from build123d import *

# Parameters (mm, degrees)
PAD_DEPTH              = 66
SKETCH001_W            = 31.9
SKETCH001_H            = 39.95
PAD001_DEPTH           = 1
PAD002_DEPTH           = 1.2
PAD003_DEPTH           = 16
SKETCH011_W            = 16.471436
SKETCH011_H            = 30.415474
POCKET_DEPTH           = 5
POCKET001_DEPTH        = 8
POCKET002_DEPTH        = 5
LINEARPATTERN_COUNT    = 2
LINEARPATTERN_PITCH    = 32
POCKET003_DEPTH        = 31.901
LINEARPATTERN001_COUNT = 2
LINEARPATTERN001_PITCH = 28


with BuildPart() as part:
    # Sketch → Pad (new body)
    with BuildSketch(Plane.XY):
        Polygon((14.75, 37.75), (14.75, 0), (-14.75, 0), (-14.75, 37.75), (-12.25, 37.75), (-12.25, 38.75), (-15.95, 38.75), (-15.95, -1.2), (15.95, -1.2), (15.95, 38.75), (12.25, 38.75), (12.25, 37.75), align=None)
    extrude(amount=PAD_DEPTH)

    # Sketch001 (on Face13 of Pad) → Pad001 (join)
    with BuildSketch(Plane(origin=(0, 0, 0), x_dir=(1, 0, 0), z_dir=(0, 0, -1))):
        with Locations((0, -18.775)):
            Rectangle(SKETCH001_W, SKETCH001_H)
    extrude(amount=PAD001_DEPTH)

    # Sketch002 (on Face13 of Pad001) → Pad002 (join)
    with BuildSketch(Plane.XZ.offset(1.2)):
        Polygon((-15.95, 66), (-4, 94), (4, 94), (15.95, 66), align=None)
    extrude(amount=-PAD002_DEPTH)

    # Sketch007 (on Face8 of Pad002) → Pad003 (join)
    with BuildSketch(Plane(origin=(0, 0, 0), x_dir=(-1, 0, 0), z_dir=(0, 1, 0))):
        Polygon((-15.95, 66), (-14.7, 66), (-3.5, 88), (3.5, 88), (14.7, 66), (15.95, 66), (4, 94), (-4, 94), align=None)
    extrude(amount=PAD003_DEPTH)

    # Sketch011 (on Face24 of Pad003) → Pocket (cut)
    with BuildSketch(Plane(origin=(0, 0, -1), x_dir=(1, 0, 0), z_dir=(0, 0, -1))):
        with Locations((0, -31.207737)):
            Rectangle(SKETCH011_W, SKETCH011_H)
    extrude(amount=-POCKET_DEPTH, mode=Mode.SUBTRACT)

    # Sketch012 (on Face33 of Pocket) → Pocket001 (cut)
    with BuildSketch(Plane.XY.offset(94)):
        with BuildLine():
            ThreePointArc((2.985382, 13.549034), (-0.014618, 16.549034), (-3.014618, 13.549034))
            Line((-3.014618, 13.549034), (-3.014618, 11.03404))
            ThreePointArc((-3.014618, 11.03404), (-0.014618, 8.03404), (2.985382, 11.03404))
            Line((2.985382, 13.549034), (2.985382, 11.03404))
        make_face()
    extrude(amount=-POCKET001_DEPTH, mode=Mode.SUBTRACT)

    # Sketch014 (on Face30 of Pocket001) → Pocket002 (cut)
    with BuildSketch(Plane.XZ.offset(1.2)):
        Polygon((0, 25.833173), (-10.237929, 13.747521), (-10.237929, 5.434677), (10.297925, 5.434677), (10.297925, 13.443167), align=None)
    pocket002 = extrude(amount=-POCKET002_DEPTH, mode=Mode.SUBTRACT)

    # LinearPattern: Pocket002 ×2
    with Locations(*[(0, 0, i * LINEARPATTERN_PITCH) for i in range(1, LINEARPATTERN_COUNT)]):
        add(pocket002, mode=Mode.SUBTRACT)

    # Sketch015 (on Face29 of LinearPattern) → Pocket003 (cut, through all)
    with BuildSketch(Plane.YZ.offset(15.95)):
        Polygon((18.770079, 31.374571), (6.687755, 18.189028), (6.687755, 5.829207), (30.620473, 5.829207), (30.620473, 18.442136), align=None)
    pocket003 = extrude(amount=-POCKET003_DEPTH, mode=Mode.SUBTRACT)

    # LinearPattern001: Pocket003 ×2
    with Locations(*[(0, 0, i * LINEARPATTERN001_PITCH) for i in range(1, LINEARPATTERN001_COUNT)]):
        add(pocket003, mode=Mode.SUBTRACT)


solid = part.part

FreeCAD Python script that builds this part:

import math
import FreeCAD as App
import Part
import Sketcher
Q = App.Units.Quantity

doc = App.newDocument("Part")
body = doc.addObject("PartDesign::Body", "Body")

sketch1 = doc.addObject("Sketcher::SketchObject", "Sketch")
body.addObject(sketch1)
sketch1.AttachmentSupport = (doc.XY_Plane, [""])
sketch1.MapMode = "FlatFace"
sketch1.addGeometry([
    Part.LineSegment(App.Vector(14.75, 37.75, 0), App.Vector(14.75, 0, 0)),
    Part.LineSegment(App.Vector(14.75, 0, 0), App.Vector(-14.75, 0, 0)),
    Part.LineSegment(App.Vector(-14.75, 0, 0), App.Vector(-14.75, 37.75, 0)),
    Part.LineSegment(App.Vector(-14.75, 37.75, 0), App.Vector(-12.25, 37.75, 0)),
    Part.LineSegment(App.Vector(-12.25, 37.75, 0), App.Vector(-12.25, 38.75, 0)),
    Part.LineSegment(App.Vector(-12.25, 38.75, 0), App.Vector(-15.95, 38.75, 0)),
    Part.LineSegment(App.Vector(-15.95, 38.75, 0), App.Vector(-15.95, -1.2, 0)),
    Part.LineSegment(App.Vector(-15.95, -1.2, 0), App.Vector(15.95, -1.2, 0)),
    Part.LineSegment(App.Vector(15.95, -1.2, 0), App.Vector(15.95, 38.75, 0)),
    Part.LineSegment(App.Vector(15.95, 38.75, 0), App.Vector(12.25, 38.75, 0)),
    Part.LineSegment(App.Vector(12.25, 38.75, 0), App.Vector(12.25, 37.75, 0)),
    Part.LineSegment(App.Vector(12.25, 37.75, 0), App.Vector(14.75, 37.75, 0)),
], False)
sketch1.addConstraint([
    Sketcher.Constraint("Coincident", 0, 2, 1, 1),
    Sketcher.Constraint("Coincident", 1, 2, 2, 1),
    Sketcher.Constraint("Coincident", 2, 2, 3, 1),
    Sketcher.Constraint("Coincident", 3, 2, 4, 1),
    Sketcher.Constraint("Coincident", 4, 2, 5, 1),
    Sketcher.Constraint("Coincident", 5, 2, 6, 1),
    Sketcher.Constraint("Coincident", 6, 2, 7, 1),
    Sketcher.Constraint("Coincident", 7, 2, 8, 1),
    Sketcher.Constraint("Coincident", 8, 2, 9, 1),
    Sketcher.Constraint("Coincident", 9, 2, 10, 1),
    Sketcher.Constraint("Coincident", 10, 2, 11, 1),
    Sketcher.Constraint("Coincident", 11, 2, 0, 1),
    Sketcher.Constraint("Vertical", 0),
    Sketcher.Constraint("Horizontal", 1),
    Sketcher.Constraint("Vertical", 2),
    Sketcher.Constraint("Horizontal", 3),
    Sketcher.Constraint("Vertical", 4),
    Sketcher.Constraint("Horizontal", 5),
    Sketcher.Constraint("Vertical", 6),
    Sketcher.Constraint("Horizontal", 7),
    Sketcher.Constraint("Vertical", 8),
    Sketcher.Constraint("Horizontal", 9),
    Sketcher.Constraint("Vertical", 10),
    Sketcher.Constraint("Horizontal", 11),
    Sketcher.Constraint("Symmetric", 0, 2, 1, 2, -1, 1),
    Sketcher.Constraint("Symmetric", 5, 2, 8, 2, -2),
    Sketcher.Constraint("Symmetric", 3, 2, 10, 2, -2),
    Sketcher.Constraint("DistanceY", 4, 1, 4, 2, Q("1 mm")),
    Sketcher.Constraint("DistanceX", 1, 2, 1, 1, Q("29.5 mm")),
    Sketcher.Constraint("DistanceX", 3, 1, 3, 2, Q("2.5 mm")),
    Sketcher.Constraint("DistanceX", 5, 2, 5, 1, Q("3.7 mm")),
    Sketcher.Constraint("DistanceY", 0, 2, 0, 1, Q("37.75 mm")),
    Sketcher.Constraint("DistanceY", 6, 2, 6, 1, Q("39.95 mm")),
])
pad1 = doc.addObject("PartDesign::Pad", "Pad")
body.addObject(pad1)
pad1.Profile = sketch1
pad1.Length = 66

sketch2 = doc.addObject("Sketcher::SketchObject", "Sketch001")
body.addObject(sketch2)
sketch2.AttachmentSupport = (doc.XY_Plane, [""])
sketch2.MapMode = "FlatFace"
sketch2.addGeometry([
    Part.LineSegment(App.Vector(-15.95, -1.2, 0), App.Vector(-15.95, 38.75, 0)),
    Part.LineSegment(App.Vector(-15.95, 38.75, 0), App.Vector(15.95, 38.75, 0)),
    Part.LineSegment(App.Vector(15.95, 38.75, 0), App.Vector(15.95, -1.2, 0)),
    Part.LineSegment(App.Vector(15.95, -1.2, 0), App.Vector(-15.95, -1.2, 0)),
], False)
sketch2.addConstraint([
    Sketcher.Constraint("Coincident", 0, 2, 1, 1),
    Sketcher.Constraint("Coincident", 1, 2, 2, 1),
    Sketcher.Constraint("Coincident", 2, 2, 3, 1),
    Sketcher.Constraint("Coincident", 3, 2, 0, 1),
    Sketcher.Constraint("Vertical", 0),
    Sketcher.Constraint("Horizontal", 1),
    Sketcher.Constraint("Vertical", 2),
    Sketcher.Constraint("Horizontal", 3),
    Sketcher.Constraint("DistanceX", 1, 1, 1, 2, Q("31.9 mm")),
    Sketcher.Constraint("DistanceY", 0, 1, 0, 2, Q("39.95 mm")),
    Sketcher.Constraint("DistanceY", 2, 2, -1, 1, Q("1.2 mm")),
    Sketcher.Constraint("DistanceX", 0, 2, -1, 1, Q("15.95 mm")),
])
pad2 = doc.addObject("PartDesign::Pad", "Pad001")
body.addObject(pad2)
pad2.Profile = sketch2
pad2.Length = 1
pad2.Reversed = True

sketch3 = doc.addObject("Sketcher::SketchObject", "Sketch002")
body.addObject(sketch3)
sketch3.AttachmentSupport = (doc.XZ_Plane, [""])
sketch3.MapMode = "FlatFace"
sketch3.AttachmentOffset = App.Placement(App.Vector(0, 0, 1.2), App.Rotation())
sketch3.addGeometry([
    Part.LineSegment(App.Vector(-4, 94, 0), App.Vector(-15.95, 66, 0)),
    Part.LineSegment(App.Vector(-15.95, 66, 0), App.Vector(15.95, 66, 0)),
    Part.LineSegment(App.Vector(15.95, 66, 0), App.Vector(4, 94, 0)),
    Part.LineSegment(App.Vector(4, 94, 0), App.Vector(-4, 94, 0)),
], False)
sketch3.addConstraint([
    Sketcher.Constraint("Coincident", 0, 2, 1, 1),
    Sketcher.Constraint("Coincident", 1, 2, 2, 1),
    Sketcher.Constraint("Coincident", 2, 2, 3, 1),
    Sketcher.Constraint("Coincident", 3, 2, 0, 1),
    Sketcher.Constraint("Horizontal", 1),
    Sketcher.Constraint("Horizontal", 3),
    Sketcher.Constraint("Equal", 0, 2),
    Sketcher.Constraint("DistanceX", 3, 2, 3, 1, Q("8 mm")),
    Sketcher.Constraint("DistanceX", 1, 1, 1, 2, Q("31.9 mm")),
    Sketcher.Constraint("DistanceY", -1, 1, 0, 2, Q("66 mm")),
    Sketcher.Constraint("DistanceX", -1, 1, 2, 2, Q("4 mm")),
    Sketcher.Constraint("DistanceY", -1, 1, 2, 2, Q("94 mm")),
])
pad3 = doc.addObject("PartDesign::Pad", "Pad002")
body.addObject(pad3)
pad3.Profile = sketch3
pad3.Length = 1.2
pad3.Reversed = True

sketch4 = doc.addObject("Sketcher::SketchObject", "Sketch003")
body.addObject(sketch4)
sketch4.AttachmentSupport = (doc.XZ_Plane, [""])
sketch4.MapMode = "FlatFace"
sketch4.addGeometry([
    Part.LineSegment(App.Vector(15.95, 66, 0), App.Vector(14.7, 66, 0)),
    Part.LineSegment(App.Vector(14.7, 66, 0), App.Vector(3.5, 88, 0)),
    Part.LineSegment(App.Vector(3.5, 88, 0), App.Vector(-3.5, 88, 0)),
    Part.LineSegment(App.Vector(-3.5, 88, 0), App.Vector(-14.7, 66, 0)),
    Part.LineSegment(App.Vector(-14.7, 66, 0), App.Vector(-15.95, 66, 0)),
    Part.LineSegment(App.Vector(-15.95, 66, 0), App.Vector(-4, 94, 0)),
    Part.LineSegment(App.Vector(-4, 94, 0), App.Vector(4, 94, 0)),
    Part.LineSegment(App.Vector(4, 94, 0), App.Vector(15.95, 66, 0)),
], False)
sketch4.addConstraint([
    Sketcher.Constraint("Coincident", 0, 2, 1, 1),
    Sketcher.Constraint("Coincident", 1, 2, 2, 1),
    Sketcher.Constraint("Coincident", 2, 2, 3, 1),
    Sketcher.Constraint("Coincident", 3, 2, 4, 1),
    Sketcher.Constraint("Coincident", 4, 2, 5, 1),
    Sketcher.Constraint("Coincident", 5, 2, 6, 1),
    Sketcher.Constraint("Coincident", 6, 2, 7, 1),
    Sketcher.Constraint("Coincident", 7, 2, 0, 1),
    Sketcher.Constraint("Horizontal", 0),
    Sketcher.Constraint("Horizontal", 2),
    Sketcher.Constraint("Horizontal", 4),
    Sketcher.Constraint("Horizontal", 6),
    Sketcher.Constraint("Symmetric", 0, 2, 3, 2, -2),
    Sketcher.Constraint("Equal", 0, 4),
    Sketcher.Constraint("Equal", 1, 3),
    Sketcher.Constraint("Equal", 5, 7),
    Sketcher.Constraint("DistanceX", 2, 2, 2, 1, Q("7 mm")),
    Sketcher.Constraint("DistanceX", 6, 1, 6, 2, Q("8 mm")),
    Sketcher.Constraint("DistanceY", -1, 1, 0, 2, Q("66 mm")),
    Sketcher.Constraint("DistanceY", -1, 1, 1, 2, Q("88 mm")),
    Sketcher.Constraint("DistanceY", -1, 1, 5, 2, Q("94 mm")),
    Sketcher.Constraint("DistanceX", 0, 2, 0, 1, Q("1.25 mm")),
    Sketcher.Constraint("DistanceX", -1, 1, 0, 2, Q("14.7 mm")),
])
pad4 = doc.addObject("PartDesign::Pad", "Pad003")
body.addObject(pad4)
pad4.Profile = sketch4
pad4.Length = 16
pad4.Reversed = True

sketch5 = doc.addObject("Sketcher::SketchObject", "Sketch004")
body.addObject(sketch5)
sketch5.AttachmentSupport = (doc.XY_Plane, [""])
sketch5.MapMode = "FlatFace"
sketch5.AttachmentOffset = App.Placement(App.Vector(0, 0, -1), App.Rotation())
sketch5.addGeometry([
    Part.LineSegment(App.Vector(-8.235718, 16, 0), App.Vector(-8.235718, 46.415474, 0)),
    Part.LineSegment(App.Vector(-8.235718, 46.415474, 0), App.Vector(8.235718, 46.415474, 0)),
    Part.LineSegment(App.Vector(8.235718, 46.415474, 0), App.Vector(8.235718, 16, 0)),
    Part.LineSegment(App.Vector(8.235718, 16, 0), App.Vector(-8.235718, 16, 0)),
], False)
sketch5.addConstraint([
    Sketcher.Constraint("Coincident", 0, 2, 1, 1),
    Sketcher.Constraint("Coincident", 1, 2, 2, 1),
    Sketcher.Constraint("Coincident", 2, 2, 3, 1),
    Sketcher.Constraint("Coincident", 3, 2, 0, 1),
    Sketcher.Constraint("Vertical", 0),
    Sketcher.Constraint("Horizontal", 1),
    Sketcher.Constraint("Vertical", 2),
    Sketcher.Constraint("Horizontal", 3),
    Sketcher.Constraint("DistanceY", -1, 1, 2, 2, Q("16 mm")),
    Sketcher.Constraint("DistanceX", 1, 1, 1, 2, Q("16.471436 mm")),
    Sketcher.Constraint("DistanceY", 0, 1, 0, 2, Q("30.415474 mm")),
    Sketcher.Constraint("DistanceX", 0, 2, -1, 1, Q("8.235718 mm")),
])
pocket1 = doc.addObject("PartDesign::Pocket", "Pocket")
body.addObject(pocket1)
pocket1.Profile = sketch5
pocket1.Length = 5
pocket1.Reversed = True

sketch6 = doc.addObject("Sketcher::SketchObject", "Sketch005")
body.addObject(sketch6)
sketch6.AttachmentSupport = (doc.XY_Plane, [""])
sketch6.MapMode = "FlatFace"
sketch6.AttachmentOffset = App.Placement(App.Vector(0, 0, 94), App.Rotation())
sketch6.addGeometry([
    Part.ArcOfCircle(Part.Circle(App.Vector(-0.014618, 13.549034, 0), App.Vector(0, 0, 1), 3), math.radians(0), math.radians(180)),
    Part.LineSegment(App.Vector(-3.014618, 13.549034, 0), App.Vector(-3.014618, 11.03404, 0)),
    Part.ArcOfCircle(Part.Circle(App.Vector(-0.014618, 11.03404, 0), App.Vector(0, 0, 1), 3), math.radians(180), math.radians(360)),
    Part.LineSegment(App.Vector(2.985382, 11.03404, 0), App.Vector(2.985382, 13.549034, 0)),
], False)
sketch6.addConstraint([
    Sketcher.Constraint("Tangent", 0, 2, 1, 1),
    Sketcher.Constraint("Tangent", 1, 2, 2, 1),
    Sketcher.Constraint("Tangent", 2, 2, 3, 1),
    Sketcher.Constraint("Tangent", 3, 2, 0, 1),
    Sketcher.Constraint("Vertical", 1),
    Sketcher.Constraint("Vertical", 3),
    Sketcher.Constraint("Radius", 0, Q("3 mm")),
    Sketcher.Constraint("DistanceY", 1, 2, 1, 1, Q("2.514994 mm")),
    Sketcher.Constraint("DistanceX", 0, 3, -1, 1, Q("0.014618 mm")),
    Sketcher.Constraint("DistanceY", -1, 1, 2, 3, Q("11.03404 mm")),
])
pocket2 = doc.addObject("PartDesign::Pocket", "Pocket001")
body.addObject(pocket2)
pocket2.Profile = sketch6
pocket2.Length = 8

sketch7 = doc.addObject("Sketcher::SketchObject", "Sketch006")
body.addObject(sketch7)
sketch7.AttachmentSupport = (doc.XZ_Plane, [""])
sketch7.MapMode = "FlatFace"
sketch7.AttachmentOffset = App.Placement(App.Vector(0, 0, 1.2), App.Rotation())
sketch7.addGeometry([
    Part.LineSegment(App.Vector(0, 25.833173, 0), App.Vector(-10.237929, 13.747521, 0)),
    Part.LineSegment(App.Vector(-10.237929, 13.747521, 0), App.Vector(-10.237929, 5.434677, 0)),
    Part.LineSegment(App.Vector(-10.237929, 5.434677, 0), App.Vector(10.297925, 5.434677, 0)),
    Part.LineSegment(App.Vector(10.297925, 5.434677, 0), App.Vector(10.297925, 13.443167, 0)),
    Part.LineSegment(App.Vector(10.297925, 13.443167, 0), App.Vector(0, 25.833173, 0)),
], False)
sketch7.addConstraint([
    Sketcher.Constraint("Coincident", 0, 2, 1, 1),
    Sketcher.Constraint("Coincident", 1, 2, 2, 1),
    Sketcher.Constraint("Coincident", 2, 2, 3, 1),
    Sketcher.Constraint("Coincident", 3, 2, 4, 1),
    Sketcher.Constraint("Coincident", 4, 2, 0, 1),
    Sketcher.Constraint("Vertical", 1),
    Sketcher.Constraint("Horizontal", 2),
    Sketcher.Constraint("Vertical", 3),
    Sketcher.Constraint("PointOnObject", 4, 2, -2),
    Sketcher.Constraint("DistanceY", 3, 1, 3, 2, Q("8.00849 mm")),
    Sketcher.Constraint("Distance", 4, Q("16.110851 mm")),
    Sketcher.Constraint("DistanceX", 2, 1, 2, 2, Q("20.535854 mm")),
    Sketcher.Constraint("DistanceY", 1, 2, 1, 1, Q("8.312844 mm")),
    Sketcher.Constraint("DistanceX", 0, 2, -1, 1, Q("10.237929 mm")),
    Sketcher.Constraint("DistanceY", -1, 1, 0, 2, Q("13.747521 mm")),
])
pocket3 = doc.addObject("PartDesign::Pocket", "Pocket002")
body.addObject(pocket3)
pocket3.Profile = sketch7
pocket3.Length = 5
doc.recompute()

linearpattern = doc.addObject("PartDesign::LinearPattern", "LinearPattern")
body.addObject(linearpattern)
linearpattern.Originals = [pocket3]
linearpattern.Direction = (doc.Z_Axis, [""])
linearpattern.Mode = "offset"
linearpattern.Offset = 32
linearpattern.Occurrences = 2
body.Tip = linearpattern

sketch8 = doc.addObject("Sketcher::SketchObject", "Sketch007")
body.addObject(sketch8)
sketch8.AttachmentSupport = (doc.YZ_Plane, [""])
sketch8.MapMode = "FlatFace"
sketch8.AttachmentOffset = App.Placement(App.Vector(0, 0, 15.95), App.Rotation())
sketch8.addGeometry([
    Part.LineSegment(App.Vector(18.770079, 31.374571, 0), App.Vector(6.687755, 18.189028, 0)),
    Part.LineSegment(App.Vector(6.687755, 18.189028, 0), App.Vector(6.687755, 5.829207, 0)),
    Part.LineSegment(App.Vector(6.687755, 5.829207, 0), App.Vector(30.620473, 5.829207, 0)),
    Part.LineSegment(App.Vector(30.620473, 5.829207, 0), App.Vector(30.620473, 18.442136, 0)),
    Part.LineSegment(App.Vector(30.620473, 18.442136, 0), App.Vector(18.770079, 31.374571, 0)),
], False)
sketch8.addConstraint([
    Sketcher.Constraint("Coincident", 0, 2, 1, 1),
    Sketcher.Constraint("Coincident", 1, 2, 2, 1),
    Sketcher.Constraint("Coincident", 2, 2, 3, 1),
    Sketcher.Constraint("Coincident", 3, 2, 4, 1),
    Sketcher.Constraint("Coincident", 4, 2, 0, 1),
    Sketcher.Constraint("Vertical", 1),
    Sketcher.Constraint("Horizontal", 2),
    Sketcher.Constraint("Vertical", 3),
    Sketcher.Constraint("Angle", 0, Q("-132.5 deg")),
    Sketcher.Constraint("Angle", 4, Q("132.500002 deg")),
    Sketcher.Constraint("Distance", 0, Q("17.884102 mm")),
    Sketcher.Constraint("Distance", 4, Q("17.540801 mm")),
    Sketcher.Constraint("DistanceY", 1, 2, 1, 1, Q("12.359821 mm")),
    Sketcher.Constraint("DistanceY", -1, 1, 0, 2, Q("18.189028 mm")),
    Sketcher.Constraint("DistanceX", -1, 1, 4, 2, Q("18.770079 mm")),
])
pocket4 = doc.addObject("PartDesign::Pocket", "Pocket003")
body.addObject(pocket4)
pocket4.Profile = sketch8
pocket4.Type = "ThroughAll"
doc.recompute()

linearpattern2 = doc.addObject("PartDesign::LinearPattern", "LinearPattern001")
body.addObject(linearpattern2)
linearpattern2.Originals = [pocket4]
linearpattern2.Direction = (doc.Z_Axis, [""])
linearpattern2.Mode = "offset"
linearpattern2.Offset = 28
linearpattern2.Occurrences = 2
body.Tip = linearpattern2

doc.recompute()
